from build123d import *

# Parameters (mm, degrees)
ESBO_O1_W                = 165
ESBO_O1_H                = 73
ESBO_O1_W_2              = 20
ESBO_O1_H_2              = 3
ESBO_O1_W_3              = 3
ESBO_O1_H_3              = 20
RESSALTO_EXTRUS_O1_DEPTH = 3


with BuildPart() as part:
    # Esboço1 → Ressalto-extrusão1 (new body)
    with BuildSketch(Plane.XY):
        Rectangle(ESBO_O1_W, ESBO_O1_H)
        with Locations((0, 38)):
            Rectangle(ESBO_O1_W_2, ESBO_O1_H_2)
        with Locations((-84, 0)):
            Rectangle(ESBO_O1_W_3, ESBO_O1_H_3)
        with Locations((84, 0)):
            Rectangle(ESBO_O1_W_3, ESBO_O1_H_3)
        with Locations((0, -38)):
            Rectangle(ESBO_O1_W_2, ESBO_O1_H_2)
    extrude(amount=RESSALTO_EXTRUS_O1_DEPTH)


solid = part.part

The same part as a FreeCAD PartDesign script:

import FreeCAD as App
import Part
import Sketcher

V = App.Vector

doc = App.newDocument("Part")
params = doc.addObject("Spreadsheet::Sheet", "Params")
for row, (alias, value) in enumerate([
    ("sketch1_width", "20 mm"),
    ("sketch1_width2", "3 mm"),
    ("sketch1_width3", "72.5 mm"),
    ("sketch1_height", "26.5 mm"),
    ("pad1_length", "3 mm"),
], start=1):
    params.set(f"A{row}", alias)
    params.set(f"B{row}", "=" + value)
    params.setAlias(f"B{row}", alias)

body = doc.addObject("PartDesign::Body", "Body")

sketch1 = doc.addObject("Sketcher::SketchObject", "Sketch")
body.addObject(sketch1)
sketch1.AttachmentSupport = (doc.XY_Plane, [""])
sketch1.MapMode = "FlatFace"
sketch1.addGeometry(Part.LineSegment(V(-82.5, -10, 0), V(-82.5, -36.5, 0)), False)
sketch1.addGeometry(Part.LineSegment(V(-82.5, -36.5, 0), V(-10, -36.5, 0)), False)
sketch1.addGeometry(Part.LineSegment(V(-10, -36.5, 0), V(-10, -39.5, 0)), False)
sketch1.addGeometry(Part.LineSegment(V(-10, -39.5, 0), V(10, -39.5, 0)), False)
sketch1.addGeometry(Part.LineSegment(V(10, -39.5, 0), V(10, -36.5, 0)), False)
sketch1.addGeometry(Part.LineSegment(V(10, -36.5, 0), V(82.5, -36.5, 0)), False)
sketch1.addGeometry(Part.LineSegment(V(82.5, -36.5, 0), V(82.5, -10, 0)), False)
sketch1.addGeometry(Part.LineSegment(V(82.5, -10, 0), V(85.5, -10, 0)), False)
sketch1.addGeometry(Part.LineSegment(V(85.5, -10, 0), V(85.5, 10, 0)), False)
sketch1.addGeometry(Part.LineSegment(V(85.5, 10, 0), V(82.5, 10, 0)), False)
sketch1.addGeometry(Part.LineSegment(V(82.5, 10, 0), V(82.5, 36.5, 0)), False)
sketch1.addGeometry(Part.LineSegment(V(82.5, 36.5, 0), V(10, 36.5, 0)), False)
sketch1.addGeometry(Part.LineSegment(V(10, 36.5, 0), V(10, 39.5, 0)), False)
sketch1.addGeometry(Part.LineSegment(V(10, 39.5, 0), V(-10, 39.5, 0)), False)
sketch1.addGeometry(Part.LineSegment(V(-10, 39.5, 0), V(-10, 36.5, 0)), False)
sketch1.addGeometry(Part.LineSegment(V(-10, 36.5, 0), V(-82.5, 36.5, 0)), False)
sketch1.addGeometry(Part.LineSegment(V(-82.5, 36.5, 0), V(-82.5, 10, 0)), False)
sketch1.addGeometry(Part.LineSegment(V(-82.5, 10, 0), V(-85.5, 10, 0)), False)
sketch1.addGeometry(Part.LineSegment(V(-85.5, 10, 0), V(-85.5, -10, 0)), False)
sketch1.addGeometry(Part.LineSegment(V(-85.5, -10, 0), V(-82.5, -10, 0)), False)
sketch1.addConstraint(Sketcher.Constraint("Coincident", 0, 2, 1, 1))
sketch1.addConstraint(Sketcher.Constraint("Coincident", 1, 2, 2, 1))
sketch1.addConstraint(Sketcher.Constraint("Coincident", 2, 2, 3, 1))
sketch1.addConstraint(Sketcher.Constraint("Coincident", 3, 2, 4, 1))
sketch1.addConstraint(Sketcher.Constraint("Coincident", 4, 2, 5, 1))
sketch1.addConstraint(Sketcher.Constraint("Coincident", 5, 2, 6, 1))
sketch1.addConstraint(Sketcher.Constraint("Coincident", 6, 2, 7, 1))
sketch1.addConstraint(Sketcher.Constraint("Coincident", 7, 2, 8, 1))
sketch1.addConstraint(Sketcher.Constraint("Coincident", 8, 2, 9, 1))
sketch1.addConstraint(Sketcher.Constraint("Coincident", 9, 2, 10, 1))
sketch1.addConstraint(Sketcher.Constraint("Coincident", 10, 2, 11, 1))
sketch1.addConstraint(Sketcher.Constraint("Coincident", 11, 2, 12, 1))
sketch1.addConstraint(Sketcher.Constraint("Coincident", 12, 2, 13, 1))
sketch1.addConstraint(Sketcher.Constraint("Coincident", 13, 2, 14, 1))
sketch1.addConstraint(Sketcher.Constraint("Coincident", 14, 2, 15, 1))
sketch1.addConstraint(Sketcher.Constraint("Coincident", 15, 2, 16, 1))
sketch1.addConstraint(Sketcher.Constraint("Coincident", 16, 2, 17, 1))
sketch1.addConstraint(Sketcher.Constraint("Coincident", 17, 2, 18, 1))
sketch1.addConstraint(Sketcher.Constraint("Coincident", 18, 2, 19, 1))
sketch1.addConstraint(Sketcher.Constraint("Coincident", 19, 2, 0, 1))
sketch1.addConstraint(Sketcher.Constraint("Vertical", 0))
sketch1.addConstraint(Sketcher.Constraint("Horizontal", 1))
sketch1.addConstraint(Sketcher.Constraint("Vertical", 2))
sketch1.addConstraint(Sketcher.Constraint("Horizontal", 3))
sketch1.addConstraint(Sketcher.Constraint("Vertical", 4))
sketch1.addConstraint(Sketcher.Constraint("Horizontal", 5))
sketch1.addConstraint(Sketcher.Constraint("Vertical", 6))
sketch1.addConstraint(Sketcher.Constraint("Horizontal", 7))
sketch1.addConstraint(Sketcher.Constraint("Vertical", 8))
sketch1.addConstraint(Sketcher.Constraint("Horizontal", 9))
sketch1.addConstraint(Sketcher.Constraint("Vertical", 10))
sketch1.addConstraint(Sketcher.Constraint("Horizontal", 11))
sketch1.addConstraint(Sketcher.Constraint("Vertical", 12))
sketch1.addConstraint(Sketcher.Constraint("Horizontal", 13))
sketch1.addConstraint(Sketcher.Constraint("Vertical", 14))
sketch1.addConstraint(Sketcher.Constraint("Horizontal", 15))
sketch1.addConstraint(Sketcher.Constraint("Vertical", 16))
sketch1.addConstraint(Sketcher.Constraint("Horizontal", 17))
sketch1.addConstraint(Sketcher.Constraint("Vertical", 18))
sketch1.addConstraint(Sketcher.Constraint("Horizontal", 19))
sketch1.addConstraint(Sketcher.Constraint("Symmetric", 0, 2, 10, 2, -1, 1))
sketch1.addConstraint(Sketcher.Constraint("Symmetric", 2, 2, 12, 2, -1, 1))
sketch1.addConstraint(Sketcher.Constraint("Symmetric", 4, 2, 14, 2, -1, 1))
sketch1.addConstraint(Sketcher.Constraint("Symmetric", 6, 2, 16, 2, -1, 1))
sketch1.addConstraint(Sketcher.Constraint("Symmetric", 8, 2, 18, 2, -1, 1))
sketch1.addConstraint(Sketcher.Constraint("Symmetric", 1, 2, 4, 2, -2))
sketch1.addConstraint(Sketcher.Constraint("Symmetric", 9, 2, 16, 2, -2))
sketch1.addConstraint(Sketcher.Constraint("Equal", 19, 2))
sketch1.addConstraint(Sketcher.Constraint("Equal", 13, 8))
sketch1.addConstraint(Sketcher.Constraint("DistanceX", 3, 1, 3, 2, 20.0))
sketch1.addConstraint(Sketcher.Constraint("DistanceX", 7, 1, 7, 2, 3.0))
sketch1.addConstraint(Sketcher.Constraint("DistanceX", 1, 1, 1, 2, 72.5))
sketch1.addConstraint(Sketcher.Constraint("DistanceY", 0, 2, 0, 1, 26.5))
sketch1.setExpression("Constraints[49]", "Params.sketch1_width")
sketch1.setExpression("Constraints[50]", "Params.sketch1_width2")
sketch1.setExpression("Constraints[51]", "Params.sketch1_width3")
sketch1.setExpression("Constraints[52]", "Params.sketch1_height")
pad1 = doc.addObject("PartDesign::Pad", "Pad")
body.addObject(pad1)
pad1.Profile = sketch1
pad1.setExpression("Length", "Params.pad1_length")

doc.recompute()
